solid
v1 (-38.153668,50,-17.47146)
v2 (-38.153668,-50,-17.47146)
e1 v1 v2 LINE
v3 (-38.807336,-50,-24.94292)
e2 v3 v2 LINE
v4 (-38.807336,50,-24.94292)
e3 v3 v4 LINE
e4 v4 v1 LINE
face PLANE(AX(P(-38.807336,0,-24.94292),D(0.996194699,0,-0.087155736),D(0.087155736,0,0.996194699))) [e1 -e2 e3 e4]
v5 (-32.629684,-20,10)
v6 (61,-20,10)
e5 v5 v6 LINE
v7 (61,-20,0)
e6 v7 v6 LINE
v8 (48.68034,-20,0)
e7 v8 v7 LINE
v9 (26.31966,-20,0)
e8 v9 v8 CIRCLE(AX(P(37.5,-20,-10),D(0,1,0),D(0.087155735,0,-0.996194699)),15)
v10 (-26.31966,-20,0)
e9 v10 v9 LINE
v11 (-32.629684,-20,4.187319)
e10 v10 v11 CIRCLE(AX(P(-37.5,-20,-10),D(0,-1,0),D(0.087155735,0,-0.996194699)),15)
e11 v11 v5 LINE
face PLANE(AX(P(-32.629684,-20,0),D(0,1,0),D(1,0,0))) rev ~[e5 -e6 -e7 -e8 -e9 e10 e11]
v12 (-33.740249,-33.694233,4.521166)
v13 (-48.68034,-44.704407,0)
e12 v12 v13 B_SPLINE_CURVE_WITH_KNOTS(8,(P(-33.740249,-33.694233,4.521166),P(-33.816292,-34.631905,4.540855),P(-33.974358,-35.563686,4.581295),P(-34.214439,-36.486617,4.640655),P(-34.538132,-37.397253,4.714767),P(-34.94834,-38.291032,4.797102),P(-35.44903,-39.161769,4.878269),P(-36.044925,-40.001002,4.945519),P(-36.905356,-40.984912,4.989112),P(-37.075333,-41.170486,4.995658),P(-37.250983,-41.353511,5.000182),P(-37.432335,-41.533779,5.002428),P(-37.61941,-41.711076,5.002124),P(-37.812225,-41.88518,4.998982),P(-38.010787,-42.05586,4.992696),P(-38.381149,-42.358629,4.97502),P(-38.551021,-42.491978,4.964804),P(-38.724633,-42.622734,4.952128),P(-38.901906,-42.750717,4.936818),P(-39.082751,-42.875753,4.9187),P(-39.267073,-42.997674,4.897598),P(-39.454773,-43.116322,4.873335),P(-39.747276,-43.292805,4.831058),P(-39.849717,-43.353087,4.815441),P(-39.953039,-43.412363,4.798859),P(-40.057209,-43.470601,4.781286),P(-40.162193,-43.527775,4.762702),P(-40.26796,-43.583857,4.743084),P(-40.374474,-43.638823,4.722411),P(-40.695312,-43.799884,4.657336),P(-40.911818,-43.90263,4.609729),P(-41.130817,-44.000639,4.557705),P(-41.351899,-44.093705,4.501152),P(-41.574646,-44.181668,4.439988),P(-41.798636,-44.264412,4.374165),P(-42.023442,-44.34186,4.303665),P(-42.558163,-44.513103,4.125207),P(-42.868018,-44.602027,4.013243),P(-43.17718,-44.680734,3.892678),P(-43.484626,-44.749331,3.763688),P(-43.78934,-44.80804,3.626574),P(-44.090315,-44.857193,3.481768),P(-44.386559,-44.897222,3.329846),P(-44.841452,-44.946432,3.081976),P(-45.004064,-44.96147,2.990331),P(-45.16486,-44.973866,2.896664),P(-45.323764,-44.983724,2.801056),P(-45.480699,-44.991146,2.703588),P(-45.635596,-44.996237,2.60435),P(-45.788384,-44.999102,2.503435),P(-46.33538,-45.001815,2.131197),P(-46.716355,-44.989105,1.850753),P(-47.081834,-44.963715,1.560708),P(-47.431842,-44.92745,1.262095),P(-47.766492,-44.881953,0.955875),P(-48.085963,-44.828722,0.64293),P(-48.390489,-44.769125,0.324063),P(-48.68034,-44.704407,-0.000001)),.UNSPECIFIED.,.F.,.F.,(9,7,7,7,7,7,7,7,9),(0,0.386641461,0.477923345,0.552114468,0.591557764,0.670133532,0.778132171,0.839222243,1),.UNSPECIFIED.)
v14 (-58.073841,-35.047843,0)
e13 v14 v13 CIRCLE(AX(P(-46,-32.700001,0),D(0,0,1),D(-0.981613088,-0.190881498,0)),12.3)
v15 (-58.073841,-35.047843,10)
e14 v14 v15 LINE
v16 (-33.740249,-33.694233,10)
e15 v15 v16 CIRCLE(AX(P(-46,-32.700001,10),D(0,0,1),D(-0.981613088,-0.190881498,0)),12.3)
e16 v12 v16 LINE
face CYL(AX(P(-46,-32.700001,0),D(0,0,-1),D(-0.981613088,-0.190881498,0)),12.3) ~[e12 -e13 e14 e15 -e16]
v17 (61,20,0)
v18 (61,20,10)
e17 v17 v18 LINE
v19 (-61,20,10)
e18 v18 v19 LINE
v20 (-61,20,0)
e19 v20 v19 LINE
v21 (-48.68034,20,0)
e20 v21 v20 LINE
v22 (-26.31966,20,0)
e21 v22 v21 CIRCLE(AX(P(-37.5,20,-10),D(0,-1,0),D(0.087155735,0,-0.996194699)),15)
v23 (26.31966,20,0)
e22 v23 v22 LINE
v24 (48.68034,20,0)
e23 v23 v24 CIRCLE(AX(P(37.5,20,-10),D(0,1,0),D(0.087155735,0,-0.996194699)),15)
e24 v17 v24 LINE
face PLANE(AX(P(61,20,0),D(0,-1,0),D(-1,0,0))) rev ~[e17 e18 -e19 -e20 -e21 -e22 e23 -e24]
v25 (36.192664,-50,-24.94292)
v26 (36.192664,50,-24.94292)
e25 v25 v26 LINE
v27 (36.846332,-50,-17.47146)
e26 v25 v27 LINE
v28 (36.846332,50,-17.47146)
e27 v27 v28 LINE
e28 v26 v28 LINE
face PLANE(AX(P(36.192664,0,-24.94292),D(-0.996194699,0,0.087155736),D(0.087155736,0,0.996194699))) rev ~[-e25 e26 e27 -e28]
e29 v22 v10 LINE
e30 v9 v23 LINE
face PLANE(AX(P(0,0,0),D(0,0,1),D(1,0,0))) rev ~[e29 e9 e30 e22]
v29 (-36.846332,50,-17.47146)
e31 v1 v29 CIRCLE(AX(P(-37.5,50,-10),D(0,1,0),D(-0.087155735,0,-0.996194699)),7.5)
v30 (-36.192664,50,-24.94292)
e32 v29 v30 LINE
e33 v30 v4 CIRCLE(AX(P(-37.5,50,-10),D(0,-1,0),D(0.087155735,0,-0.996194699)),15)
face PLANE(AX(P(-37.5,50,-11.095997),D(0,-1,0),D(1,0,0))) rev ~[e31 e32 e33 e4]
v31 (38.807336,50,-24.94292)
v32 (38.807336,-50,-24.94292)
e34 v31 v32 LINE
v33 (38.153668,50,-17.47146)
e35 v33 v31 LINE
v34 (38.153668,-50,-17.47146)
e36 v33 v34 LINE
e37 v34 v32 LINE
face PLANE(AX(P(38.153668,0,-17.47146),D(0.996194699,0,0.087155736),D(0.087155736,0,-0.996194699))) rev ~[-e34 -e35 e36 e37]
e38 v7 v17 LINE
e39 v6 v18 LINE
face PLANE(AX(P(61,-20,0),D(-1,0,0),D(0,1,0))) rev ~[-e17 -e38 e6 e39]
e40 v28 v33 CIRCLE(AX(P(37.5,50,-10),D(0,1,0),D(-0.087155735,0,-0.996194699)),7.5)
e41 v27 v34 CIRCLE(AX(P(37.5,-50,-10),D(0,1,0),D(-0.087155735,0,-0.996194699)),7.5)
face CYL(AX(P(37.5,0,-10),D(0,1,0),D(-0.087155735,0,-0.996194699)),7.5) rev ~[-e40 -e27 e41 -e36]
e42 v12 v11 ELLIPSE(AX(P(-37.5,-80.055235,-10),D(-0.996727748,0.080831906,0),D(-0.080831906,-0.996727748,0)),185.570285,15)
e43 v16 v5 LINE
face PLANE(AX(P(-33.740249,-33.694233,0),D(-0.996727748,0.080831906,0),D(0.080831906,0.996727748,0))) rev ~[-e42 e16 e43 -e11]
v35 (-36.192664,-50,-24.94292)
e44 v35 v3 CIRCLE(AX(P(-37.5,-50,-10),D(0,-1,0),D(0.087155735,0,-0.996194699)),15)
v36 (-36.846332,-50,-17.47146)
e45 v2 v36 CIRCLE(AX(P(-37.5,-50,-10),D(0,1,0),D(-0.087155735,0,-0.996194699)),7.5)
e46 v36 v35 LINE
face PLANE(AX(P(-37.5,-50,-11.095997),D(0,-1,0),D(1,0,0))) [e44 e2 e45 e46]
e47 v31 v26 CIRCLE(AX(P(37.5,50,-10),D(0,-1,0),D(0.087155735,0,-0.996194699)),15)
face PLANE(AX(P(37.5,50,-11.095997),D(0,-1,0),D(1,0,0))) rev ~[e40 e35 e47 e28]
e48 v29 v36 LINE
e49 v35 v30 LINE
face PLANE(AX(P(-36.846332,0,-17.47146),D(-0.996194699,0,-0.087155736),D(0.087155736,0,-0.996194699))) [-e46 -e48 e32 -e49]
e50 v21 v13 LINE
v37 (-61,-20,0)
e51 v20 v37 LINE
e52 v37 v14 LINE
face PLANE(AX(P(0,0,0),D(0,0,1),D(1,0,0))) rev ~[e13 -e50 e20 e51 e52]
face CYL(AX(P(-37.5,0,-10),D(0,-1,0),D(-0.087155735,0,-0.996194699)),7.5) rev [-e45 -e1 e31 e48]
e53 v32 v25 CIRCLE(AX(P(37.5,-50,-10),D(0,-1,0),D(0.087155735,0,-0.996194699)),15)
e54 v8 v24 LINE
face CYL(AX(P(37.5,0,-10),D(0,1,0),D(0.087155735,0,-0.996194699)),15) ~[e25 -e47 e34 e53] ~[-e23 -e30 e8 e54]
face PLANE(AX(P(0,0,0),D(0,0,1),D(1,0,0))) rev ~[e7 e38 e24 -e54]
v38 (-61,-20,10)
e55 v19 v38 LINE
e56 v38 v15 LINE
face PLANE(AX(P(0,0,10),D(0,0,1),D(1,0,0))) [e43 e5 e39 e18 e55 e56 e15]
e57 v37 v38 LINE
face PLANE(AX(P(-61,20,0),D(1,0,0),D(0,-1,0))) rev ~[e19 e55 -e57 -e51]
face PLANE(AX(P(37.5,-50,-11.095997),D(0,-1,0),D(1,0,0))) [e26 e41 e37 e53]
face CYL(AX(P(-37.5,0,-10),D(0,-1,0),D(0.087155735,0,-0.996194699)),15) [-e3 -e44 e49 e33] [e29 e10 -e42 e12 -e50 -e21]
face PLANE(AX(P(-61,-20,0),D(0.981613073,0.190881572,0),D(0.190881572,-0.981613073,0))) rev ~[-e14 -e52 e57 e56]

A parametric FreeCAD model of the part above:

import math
import FreeCAD as App
import Part
import Sketcher

V = App.Vector
Q = App.Units.Quantity

doc = App.newDocument("Part")
params = doc.addObject("Spreadsheet::Sheet", "Params")
for row, (alias, value) in enumerate([
    ("sketch1_radius", "12.3 mm"),
    ("sketch1_width", "122 mm"),
    ("sketch1_height", "40 mm"),
    ("pad1_length", "10 mm"),
    ("sketch2_radius", "15 mm"),
    ("sketch2_radius2", "7.5 mm"),
    ("pad2_length", "100 mm"),
], start=1):
    params.set(f"A{row}", alias)
    params.set(f"B{row}", "=" + value)
    params.setAlias(f"B{row}", alias)

body = doc.addObject("PartDesign::Body", "Body")

# Sketch on XY plane
sketch1 = body.newObject("Sketcher::SketchObject", "Sketch")
sketch1.AttachmentSupport = (doc.getObject("XY_Plane"), [""])
sketch1.MapMode = "FlatFace"
sketch1.addGeometry(Part.LineSegment(V(61, -20, 0), V(61, 20, 0)), False)
sketch1.addGeometry(Part.LineSegment(V(61, 20, 0), V(-61, 20, 0)), False)
sketch1.addGeometry(Part.LineSegment(V(-61, 20, 0), V(-61, -20, 0)), False)
sketch1.addGeometry(Part.LineSegment(V(-61, -20, 0), V(-58, -35, 0)), False)
sketch1.addGeometry(Part.ArcOfCircle(Part.Circle(V(-46, -33, 0), V(0, 0, 1), 12), math.radians(-169), math.radians(-5)), False)
sketch1.addGeometry(Part.LineSegment(V(-34, -34, 0), V(-33, -20, 0)), False)
sketch1.addGeometry(Part.LineSegment(V(-33, -20, 0), V(61, -20, 0)), False)
sketch1.addConstraint(Sketcher.Constraint("Coincident", 0, 2, 1, 1))
sketch1.addConstraint(Sketcher.Constraint("Coincident", 1, 2, 2, 1))
sketch1.addConstraint(Sketcher.Constraint("Coincident", 2, 2, 3, 1))
sketch1.addConstraint(Sketcher.Constraint("Tangent", 3, 2, 4, 1))
sketch1.addConstraint(Sketcher.Constraint("Tangent", 4, 2, 5, 1))
sketch1.addConstraint(Sketcher.Constraint("Coincident", 5, 2, 6, 1))
sketch1.addConstraint(Sketcher.Constraint("Coincident", 6, 2, 0, 1))
sketch1.addConstraint(Sketcher.Constraint("Vertical", 0))
sketch1.addConstraint(Sketcher.Constraint("Horizontal", 1))
sketch1.addConstraint(Sketcher.Constraint("Vertical", 2))
sketch1.addConstraint(Sketcher.Constraint("Horizontal", 6))
sketch1.addConstraint(Sketcher.Constraint("Symmetric", 0, 2, 2, 2, -1, 1))
sketch1.addConstraint(Sketcher.Constraint("Horizontal", 2, 2, 5, 2))
sketch1.addConstraint(Sketcher.Constraint("Radius", 4, Q("12.3 mm")))
sketch1.addConstraint(Sketcher.Constraint("DistanceX", 1, 2, 1, 1, Q("122 mm")))
sketch1.addConstraint(Sketcher.Constraint("DistanceY", 0, 1, 0, 2, Q("40 mm")))
sketch1.addConstraint(Sketcher.Constraint("DistanceX", 4, 3, -1, 1, Q("46 mm")))
sketch1.addConstraint(Sketcher.Constraint("DistanceY", 4, 3, -1, 1, Q("32.700001 mm")))
sketch1.addConstraint(Sketcher.Constraint("Distance", 5, Q("13.739191 mm")))
sketch1.setExpression("Constraints[13]", "Params.sketch1_radius")
sketch1.setExpression("Constraints[14]", "Params.sketch1_width")
sketch1.setExpression("Constraints[15]", "Params.sketch1_height")
pad1 = body.newObject("PartDesign::Pad", "Pad")
pad1.Profile = sketch1
pad1.setExpression("Length", "Params.pad1_length")

# Sketch on XZ plane
sketch2 = body.newObject("Sketcher::SketchObject", "Sketch001")
sketch2.AttachmentSupport = (doc.getObject("XZ_Plane"), [""])
sketch2.MapMode = "FlatFace"
sketch2.addGeometry(Part.ArcOfCircle(Part.Circle(V(37.5, -10, 0), V(0, 0, 1), 7.5), math.radians(-85), math.radians(265)), False)
sketch2.addGeometry(Part.LineSegment(V(38.2, -17.5, 0), V(38.8, -24.9, 0)), False)
sketch2.addGeometry(Part.ArcOfCircle(Part.Circle(V(37.5, -10, 0), V(0, 0, 1), 15), math.radians(-85), math.radians(265)), False)
sketch2.addGeometry(Part.LineSegment(V(36.2, -24.9, 0), V(36.8, -17.5, 0)), False)
sketch2.addGeometry(Part.LineSegment(V(-38.8, -24.9, 0), V(-38.2, -17.5, 0)), False)
sketch2.addGeometry(Part.ArcOfCircle(Part.Circle(V(-37.5, -10, 0), V(0, 0, 1), 7.5), math.radians(-85), math.radians(265)), False)
sketch2.addGeometry(Part.LineSegment(V(-36.8, -17.5, 0), V(-36.2, -24.9, 0)), False)
sketch2.addGeometry(Part.ArcOfCircle(Part.Circle(V(-37.5, -10, 0), V(0, 0, 1), 15), math.radians(-85), math.radians(265)), False)
sketch2.addConstraint(Sketcher.Constraint("Coincident", 0, 1, 1, 1))
sketch2.addConstraint(Sketcher.Constraint("Coincident", 1, 2, 2, 1))
sketch2.addConstraint(Sketcher.Constraint("Coincident", 2, 2, 3, 1))
sketch2.addConstraint(Sketcher.Constraint("Coincident", 3, 2, 0, 2))
sketch2.addConstraint(Sketcher.Constraint("Coincident", 4, 2, 5, 2))
sketch2.addConstraint(Sketcher.Constraint("Coincident", 5, 1, 6, 1))
sketch2.addConstraint(Sketcher.Constraint("Coincident", 6, 2, 7, 1))
sketch2.addConstraint(Sketcher.Constraint("Coincident", 7, 2, 4, 1))
sketch2.addConstraint(Sketcher.Constraint("Coincident", 2, 3, 0, 3))
sketch2.addConstraint(Sketcher.Constraint("Coincident", 7, 3, 5, 3))
sketch2.addConstraint(Sketcher.Constraint("Equal", 0, 5))
sketch2.addConstraint(Sketcher.Constraint("Equal", 2, 7))
sketch2.addConstraint(Sketcher.Constraint("Symmetric", 0, 3, 5, 3, -2))
sketch2.addConstraint(Sketcher.Constraint("Parallel", 3, 4))
sketch2.addConstraint(Sketcher.Constraint("Parallel", 1, 6))
sketch2.addConstraint(Sketcher.Constraint("Horizontal", 1, 2, 2, 2))
sketch2.addConstraint(Sketcher.Constraint("Horizontal", 0, 1, 3, 2))
sketch2.addConstraint(Sketcher.Constraint("Horizontal", 3, 2, 4, 2))
sketch2.addConstraint(Sketcher.Constraint("Horizontal", 4, 2, 5, 1))
sketch2.addConstraint(Sketcher.Constraint("Radius", 2, Q("15 mm")))
sketch2.addConstraint(Sketcher.Constraint("Radius", 0, Q("7.5 mm")))
sketch2.addConstraint(Sketcher.Constraint("Angle", 1, Q("-85 deg")))
sketch2.addConstraint(Sketcher.Constraint("DistanceY", 0, 3, -1, 1, Q("10 mm")))
sketch2.addConstraint(Sketcher.Constraint("DistanceX", 5, 3, 0, 3, Q("75 mm")))
sketch2.addConstraint(Sketcher.Constraint("DistanceY", 0, 1, -1, 1, Q("17.47146 mm")))
sketch2.setExpression("Constraints[19]", "Params.sketch2_radius")
sketch2.setExpression("Constraints[20]", "Params.sketch2_radius2")
pad2 = body.newObject("PartDesign::Pad", "Pad001")
pad2.Profile = sketch2
pad2.setExpression("Length", "Params.pad2_length")
pad2.Midplane = True

doc.recompute()
